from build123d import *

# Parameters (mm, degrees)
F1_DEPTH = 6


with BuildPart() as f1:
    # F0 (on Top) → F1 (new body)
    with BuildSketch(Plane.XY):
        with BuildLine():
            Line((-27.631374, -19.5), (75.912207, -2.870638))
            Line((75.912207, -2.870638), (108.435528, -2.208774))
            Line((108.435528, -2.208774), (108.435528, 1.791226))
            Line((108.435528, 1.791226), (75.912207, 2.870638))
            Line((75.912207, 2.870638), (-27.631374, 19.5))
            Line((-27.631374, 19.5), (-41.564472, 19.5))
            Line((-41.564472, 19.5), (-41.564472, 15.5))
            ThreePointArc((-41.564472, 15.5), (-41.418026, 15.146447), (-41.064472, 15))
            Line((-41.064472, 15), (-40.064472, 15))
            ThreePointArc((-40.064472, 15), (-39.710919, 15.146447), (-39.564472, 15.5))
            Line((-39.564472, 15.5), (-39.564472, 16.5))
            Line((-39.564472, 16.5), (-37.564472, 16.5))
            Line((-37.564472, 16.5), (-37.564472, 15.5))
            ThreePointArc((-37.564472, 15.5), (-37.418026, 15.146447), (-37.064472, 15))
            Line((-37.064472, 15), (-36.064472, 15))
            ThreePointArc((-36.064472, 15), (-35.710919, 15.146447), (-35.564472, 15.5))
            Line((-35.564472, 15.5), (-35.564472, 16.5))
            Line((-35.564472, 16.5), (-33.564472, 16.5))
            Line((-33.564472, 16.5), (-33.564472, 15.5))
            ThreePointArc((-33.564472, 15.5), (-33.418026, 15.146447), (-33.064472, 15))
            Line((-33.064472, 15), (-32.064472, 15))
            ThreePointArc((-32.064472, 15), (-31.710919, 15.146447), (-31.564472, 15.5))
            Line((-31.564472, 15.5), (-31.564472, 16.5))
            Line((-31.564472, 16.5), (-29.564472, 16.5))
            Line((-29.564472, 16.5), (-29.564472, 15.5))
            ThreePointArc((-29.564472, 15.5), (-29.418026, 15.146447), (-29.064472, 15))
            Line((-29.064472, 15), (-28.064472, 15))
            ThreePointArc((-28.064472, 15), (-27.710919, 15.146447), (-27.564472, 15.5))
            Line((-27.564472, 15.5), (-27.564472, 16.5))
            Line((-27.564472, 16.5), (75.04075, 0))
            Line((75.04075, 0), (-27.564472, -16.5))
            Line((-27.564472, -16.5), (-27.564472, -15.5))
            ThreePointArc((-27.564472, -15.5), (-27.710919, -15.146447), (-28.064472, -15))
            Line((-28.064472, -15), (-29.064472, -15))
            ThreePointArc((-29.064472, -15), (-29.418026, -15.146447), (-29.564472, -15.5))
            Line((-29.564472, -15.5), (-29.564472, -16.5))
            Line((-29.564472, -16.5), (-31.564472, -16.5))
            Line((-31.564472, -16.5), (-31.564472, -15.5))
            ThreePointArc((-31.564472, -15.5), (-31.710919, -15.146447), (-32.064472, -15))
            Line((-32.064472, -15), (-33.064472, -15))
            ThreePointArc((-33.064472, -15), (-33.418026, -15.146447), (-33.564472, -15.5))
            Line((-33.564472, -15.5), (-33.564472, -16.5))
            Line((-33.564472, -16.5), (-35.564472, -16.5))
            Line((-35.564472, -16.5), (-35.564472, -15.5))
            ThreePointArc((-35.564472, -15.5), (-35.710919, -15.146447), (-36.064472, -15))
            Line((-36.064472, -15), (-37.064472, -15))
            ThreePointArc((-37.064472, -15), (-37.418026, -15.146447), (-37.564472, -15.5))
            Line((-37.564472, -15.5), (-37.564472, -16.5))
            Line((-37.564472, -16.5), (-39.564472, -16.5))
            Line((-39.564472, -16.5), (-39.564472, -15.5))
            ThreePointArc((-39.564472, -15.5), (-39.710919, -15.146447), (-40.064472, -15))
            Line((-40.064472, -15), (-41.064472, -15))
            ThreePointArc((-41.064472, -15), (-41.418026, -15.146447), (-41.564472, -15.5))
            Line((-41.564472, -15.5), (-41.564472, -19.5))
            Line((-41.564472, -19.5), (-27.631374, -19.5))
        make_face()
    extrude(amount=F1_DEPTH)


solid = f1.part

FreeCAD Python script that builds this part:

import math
import FreeCAD as App
import Part
import Sketcher

V = App.Vector
Q = App.Units.Quantity

doc = App.newDocument("Part")
body = doc.addObject("PartDesign::Body", "Body")

# Sketch on XY plane
sketch1 = body.newObject("Sketcher::SketchObject", "Sketch")
sketch1.AttachmentSupport = (doc.getObject("XY_Plane"), [""])
sketch1.MapMode = "FlatFace"
sketch1.addGeometry([
    Part.LineSegment(V(-27.631374, -19.5, 0), V(75.912207, -2.870638, 0)),  # 0
    Part.LineSegment(V(75.912207, -2.870638, 0), V(108.435528, -2.208774, 0)),  # 1
    Part.LineSegment(V(108.435528, -2.208774, 0), V(108.435528, 1.791226, 0)),  # 2
    Part.LineSegment(V(108.435528, 1.791226, 0), V(75.912207, 2.870638, 0)),  # 3
    Part.LineSegment(V(75.912207, 2.870638, 0), V(-27.631374, 19.5, 0)),  # 4
    Part.LineSegment(V(-27.631374, 19.5, 0), V(-41.564472, 19.5, 0)),  # 5
    Part.LineSegment(V(-41.564472, 19.5, 0), V(-41.564472, 15.5, 0)),  # 6
    Part.ArcOfCircle(Part.Circle(V(-41.064472, 15.5, 0), V(0, 0, 1), 0.5), math.radians(179.999957), math.radians(270.000043)),  # 7
    Part.LineSegment(V(-41.064472, 15, 0), V(-40.064472, 15, 0)),  # 8
    Part.ArcOfCircle(Part.Circle(V(-40.064473, 15.500001, 0), V(0, 0, 1), 0.500001), math.radians(-89.999847), math.radians(-0.000153)),  # 9
    Part.LineSegment(V(-39.564472, 15.5, 0), V(-39.564472, 16.5, 0)),  # 10
    Part.LineSegment(V(-39.564472, 16.5, 0), V(-37.564472, 16.5, 0)),  # 11
    Part.LineSegment(V(-37.564472, 16.5, 0), V(-37.564472, 15.5, 0)),  # 12
    Part.ArcOfCircle(Part.Circle(V(-37.064472, 15.5, 0), V(0, 0, 1), 0.5), math.radians(179.999957), math.radians(270.000043)),  # 13
    Part.LineSegment(V(-37.064472, 15, 0), V(-36.064472, 15, 0)),  # 14
    Part.ArcOfCircle(Part.Circle(V(-36.064473, 15.500001, 0), V(0, 0, 1), 0.500001), math.radians(-89.999847), math.radians(-0.000153)),  # 15
    Part.LineSegment(V(-35.564472, 15.5, 0), V(-35.564472, 16.5, 0)),  # 16
    Part.LineSegment(V(-35.564472, 16.5, 0), V(-33.564472, 16.5, 0)),  # 17
    Part.LineSegment(V(-33.564472, 16.5, 0), V(-33.564472, 15.5, 0)),  # 18
    Part.ArcOfCircle(Part.Circle(V(-33.064472, 15.5, 0), V(0, 0, 1), 0.5), math.radians(179.999957), math.radians(270.000043)),  # 19
    Part.LineSegment(V(-33.064472, 15, 0), V(-32.064472, 15, 0)),  # 20
    Part.ArcOfCircle(Part.Circle(V(-32.064473, 15.500001, 0), V(0, 0, 1), 0.500001), math.radians(-89.999847), math.radians(-0.000153)),  # 21
    Part.LineSegment(V(-31.564472, 15.5, 0), V(-31.564472, 16.5, 0)),  # 22
    Part.LineSegment(V(-31.564472, 16.5, 0), V(-29.564472, 16.5, 0)),  # 23
    Part.LineSegment(V(-29.564472, 16.5, 0), V(-29.564472, 15.5, 0)),  # 24
    Part.ArcOfCircle(Part.Circle(V(-29.064472, 15.5, 0), V(0, 0, 1), 0.5), math.radians(179.999957), math.radians(270.000043)),  # 25
    Part.LineSegment(V(-29.064472, 15, 0), V(-28.064472, 15, 0)),  # 26
    Part.ArcOfCircle(Part.Circle(V(-28.064473, 15.500001, 0), V(0, 0, 1), 0.500001), math.radians(-89.999847), math.radians(-0.000153)),  # 27
    Part.LineSegment(V(-27.564472, 15.5, 0), V(-27.564472, 16.5, 0)),  # 28
    Part.LineSegment(V(-27.564472, 16.5, 0), V(75.04075, 0, 0)),  # 29
    Part.LineSegment(V(75.04075, 0, 0), V(-27.564472, -16.5, 0)),  # 30
    Part.LineSegment(V(-27.564472, -16.5, 0), V(-27.564472, -15.5, 0)),  # 31
    Part.ArcOfCircle(Part.Circle(V(-28.064473, -15.500001, 0), V(0, 0, 1), 0.500001), math.radians(0.000153), math.radians(89.999847)),  # 32
    Part.LineSegment(V(-28.064472, -15, 0), V(-29.064472, -15, 0)),  # 33
    Part.ArcOfCircle(Part.Circle(V(-29.064472, -15.5, 0), V(0, 0, 1), 0.5), math.radians(89.999957), math.radians(180.000043)),  # 34
    Part.LineSegment(V(-29.564472, -15.5, 0), V(-29.564472, -16.5, 0)),  # 35
    Part.LineSegment(V(-29.564472, -16.5, 0), V(-31.564472, -16.5, 0)),  # 36
    Part.LineSegment(V(-31.564472, -16.5, 0), V(-31.564472, -15.5, 0)),  # 37
    Part.ArcOfCircle(Part.Circle(V(-32.064473, -15.500001, 0), V(0, 0, 1), 0.500001), math.radians(0.000153), math.radians(89.999847)),  # 38
    Part.LineSegment(V(-32.064472, -15, 0), V(-33.064472, -15, 0)),  # 39
    Part.ArcOfCircle(Part.Circle(V(-33.064472, -15.5, 0), V(0, 0, 1), 0.5), math.radians(89.999957), math.radians(180.000043)),  # 40
    Part.LineSegment(V(-33.564472, -15.5, 0), V(-33.564472, -16.5, 0)),  # 41
    Part.LineSegment(V(-33.564472, -16.5, 0), V(-35.564472, -16.5, 0)),  # 42
    Part.LineSegment(V(-35.564472, -16.5, 0), V(-35.564472, -15.5, 0)),  # 43
    Part.ArcOfCircle(Part.Circle(V(-36.064473, -15.500001, 0), V(0, 0, 1), 0.500001), math.radians(0.000153), math.radians(89.999847)),  # 44
    Part.LineSegment(V(-36.064472, -15, 0), V(-37.064472, -15, 0)),  # 45
    Part.ArcOfCircle(Part.Circle(V(-37.064472, -15.5, 0), V(0, 0, 1), 0.5), math.radians(89.999957), math.radians(180.000043)),  # 46
    Part.LineSegment(V(-37.564472, -15.5, 0), V(-37.564472, -16.5, 0)),  # 47
    Part.LineSegment(V(-37.564472, -16.5, 0), V(-39.564472, -16.5, 0)),  # 48
    Part.LineSegment(V(-39.564472, -16.5, 0), V(-39.564472, -15.5, 0)),  # 49
    Part.ArcOfCircle(Part.Circle(V(-40.064473, -15.500001, 0), V(0, 0, 1), 0.500001), math.radians(0.000153), math.radians(89.999847)),  # 50
    Part.LineSegment(V(-40.064472, -15, 0), V(-41.064472, -15, 0)),  # 51
    Part.ArcOfCircle(Part.Circle(V(-41.064472, -15.5, 0), V(0, 0, 1), 0.5), math.radians(89.999957), math.radians(180.000043)),  # 52
    Part.LineSegment(V(-41.564472, -15.5, 0), V(-41.564472, -19.5, 0)),  # 53
    Part.LineSegment(V(-41.564472, -19.5, 0), V(-27.631374, -19.5, 0)),  # 54
], False)
sketch1.addConstraint([
    Sketcher.Constraint("Coincident", 0, 2, 1, 1),
    Sketcher.Constraint("Coincident", 1, 2, 2, 1),
    Sketcher.Constraint("Coincident", 2, 2, 3, 1),
    Sketcher.Constraint("Coincident", 3, 2, 4, 1),
    Sketcher.Constraint("Coincident", 4, 2, 5, 1),
    Sketcher.Constraint("Coincident", 5, 2, 6, 1),
    Sketcher.Constraint("Coincident", 6, 2, 7, 1),
    Sketcher.Constraint("Coincident", 7, 2, 8, 1),
    Sketcher.Constraint("Coincident", 8, 2, 9, 1),
    Sketcher.Constraint("Coincident", 9, 2, 10, 1),
    Sketcher.Constraint("Coincident", 10, 2, 11, 1),
    Sketcher.Constraint("Coincident", 11, 2, 12, 1),
    Sketcher.Constraint("Coincident", 12, 2, 13, 1),
    Sketcher.Constraint("Coincident", 13, 2, 14, 1),
    Sketcher.Constraint("Coincident", 14, 2, 15, 1),
    Sketcher.Constraint("Coincident", 15, 2, 16, 1),
    Sketcher.Constraint("Coincident", 16, 2, 17, 1),
    Sketcher.Constraint("Coincident", 17, 2, 18, 1),
    Sketcher.Constraint("Coincident", 18, 2, 19, 1),
    Sketcher.Constraint("Coincident", 19, 2, 20, 1),
    Sketcher.Constraint("Coincident", 20, 2, 21, 1),
    Sketcher.Constraint("Coincident", 21, 2, 22, 1),
    Sketcher.Constraint("Coincident", 22, 2, 23, 1),
    Sketcher.Constraint("Coincident", 23, 2, 24, 1),
    Sketcher.Constraint("Coincident", 24, 2, 25, 1),
    Sketcher.Constraint("Coincident", 25, 2, 26, 1),
    Sketcher.Constraint("Coincident", 26, 2, 27, 1),
    Sketcher.Constraint("Coincident", 27, 2, 28, 1),
    Sketcher.Constraint("Coincident", 28, 2, 29, 1),
    Sketcher.Constraint("Coincident", 29, 2, 30, 1),
    Sketcher.Constraint("Coincident", 30, 2, 31, 1),
    Sketcher.Constraint("Coincident", 31, 2, 32, 1),
    Sketcher.Constraint("Coincident", 32, 2, 33, 1),
    Sketcher.Constraint("Coincident", 33, 2, 34, 1),
    Sketcher.Constraint("Coincident", 34, 2, 35, 1),
    Sketcher.Constraint("Coincident", 35, 2, 36, 1),
    Sketcher.Constraint("Coincident", 36, 2, 37, 1),
    Sketcher.Constraint("Coincident", 37, 2, 38, 1),
    Sketcher.Constraint("Coincident", 38, 2, 39, 1),
    Sketcher.Constraint("Coincident", 39, 2, 40, 1),
    Sketcher.Constraint("Coincident", 40, 2, 41, 1),
    Sketcher.Constraint("Coincident", 41, 2, 42, 1),
    Sketcher.Constraint("Coincident", 42, 2, 43, 1),
    Sketcher.Constraint("Coincident", 43, 2, 44, 1),
    Sketcher.Constraint("Coincident", 44, 2, 45, 1),
    Sketcher.Constraint("Coincident", 45, 2, 46, 1),
    Sketcher.Constraint("Coincident", 46, 2, 47, 1),
    Sketcher.Constraint("Coincident", 47, 2, 48, 1),
    Sketcher.Constraint("Coincident", 48, 2, 49, 1),
    Sketcher.Constraint("Coincident", 49, 2, 50, 1),
    Sketcher.Constraint("Coincident", 50, 2, 51, 1),
    Sketcher.Constraint("Coincident", 51, 2, 52, 1),
    Sketcher.Constraint("Coincident", 52, 2, 53, 1),
    Sketcher.Constraint("Coincident", 53, 2, 54, 1),
    Sketcher.Constraint("Coincident", 54, 2, 0, 1),
    Sketcher.Constraint("Vertical", 2),
    Sketcher.Constraint("Horizontal", 5),
    Sketcher.Constraint("Vertical", 6),
    Sketcher.Constraint("Horizontal", 8),
    Sketcher.Constraint("Vertical", 10),
    Sketcher.Constraint("Horizontal", 11),
    Sketcher.Constraint("Vertical", 12),
    Sketcher.Constraint("Horizontal", 14),
    Sketcher.Constraint("Vertical", 16),
    Sketcher.Constraint("Horizontal", 17),
    Sketcher.Constraint("Vertical", 18),
    Sketcher.Constraint("Horizontal", 20),
    Sketcher.Constraint("Vertical", 22),
    Sketcher.Constraint("Horizontal", 23),
    Sketcher.Constraint("Vertical", 24),
    Sketcher.Constraint("Horizontal", 26),
    Sketcher.Constraint("Vertical", 28),
    Sketcher.Constraint("Vertical", 31),
    Sketcher.Constraint("Horizontal", 33),
    Sketcher.Constraint("Vertical", 35),
    Sketcher.Constraint("Horizontal", 36),
    Sketcher.Constraint("Vertical", 37),
    Sketcher.Constraint("Horizontal", 39),
    Sketcher.Constraint("Vertical", 41),
    Sketcher.Constraint("Horizontal", 42),
    Sketcher.Constraint("Vertical", 43),
    Sketcher.Constraint("Horizontal", 45),
    Sketcher.Constraint("Vertical", 47),
    Sketcher.Constraint("Horizontal", 48),
    Sketcher.Constraint("Vertical", 49),
    Sketcher.Constraint("Horizontal", 51),
    Sketcher.Constraint("Vertical", 53),
    Sketcher.Constraint("Horizontal", 54),
    Sketcher.Constraint("PointOnObject", 29, 2, -1),
    Sketcher.Constraint("Radius", 7, Q("0.5 mm")),
    Sketcher.Constraint("Radius", 9, Q("0.500001 mm")),
    Sketcher.Constraint("Radius", 13, Q("0.5 mm")),
    Sketcher.Constraint("Radius", 15, Q("0.500001 mm")),
    Sketcher.Constraint("Radius", 19, Q("0.5 mm")),
    Sketcher.Constraint("Radius", 21, Q("0.500001 mm")),
    Sketcher.Constraint("Radius", 25, Q("0.5 mm")),
    Sketcher.Constraint("Radius", 27, Q("0.500001 mm")),
    Sketcher.Constraint("Radius", 32, Q("0.500001 mm")),
    Sketcher.Constraint("Radius", 34, Q("0.5 mm")),
    Sketcher.Constraint("Radius", 38, Q("0.500001 mm")),
    Sketcher.Constraint("Radius", 40, Q("0.5 mm")),
    Sketcher.Constraint("Radius", 44, Q("0.500001 mm")),
    Sketcher.Constraint("Radius", 46, Q("0.5 mm")),
    Sketcher.Constraint("Radius", 50, Q("0.500001 mm")),
    Sketcher.Constraint("Radius", 52, Q("0.5 mm")),
    Sketcher.Constraint("DistanceX", 8, 1, 8, 2, Q("1 mm")),
    Sketcher.Constraint("DistanceX", 11, 1, 11, 2, Q("2 mm")),
    Sketcher.Constraint("DistanceX", 14, 1, 14, 2, Q("1 mm")),
    Sketcher.Constraint("DistanceX", 17, 1, 17, 2, Q("2 mm")),
    Sketcher.Constraint("DistanceX", 20, 1, 20, 2, Q("1 mm")),
    Sketcher.Constraint("DistanceX", 23, 1, 23, 2, Q("2 mm")),
    Sketcher.Constraint("DistanceX", 26, 1, 26, 2, Q("1 mm")),
    Sketcher.Constraint("DistanceX", 33, 2, 33, 1, Q("1 mm")),
    Sketcher.Constraint("DistanceX", 36, 2, 36, 1, Q("2 mm")),
    Sketcher.Constraint("DistanceX", 39, 2, 39, 1, Q("1 mm")),
    Sketcher.Constraint("DistanceX", 42, 2, 42, 1, Q("2 mm")),
    Sketcher.Constraint("DistanceX", 45, 2, 45, 1, Q("1 mm")),
    Sketcher.Constraint("DistanceX", 48, 2, 48, 1, Q("2 mm")),
    Sketcher.Constraint("DistanceX", 51, 2, 51, 1, Q("1 mm")),
    Sketcher.Constraint("DistanceY", 2, 1, 2, 2, Q("4 mm")),
    Sketcher.Constraint("DistanceY", 6, 2, 6, 1, Q("4 mm")),
    Sketcher.Constraint("DistanceY", 10, 1, 10, 2, Q("1 mm")),
    Sketcher.Constraint("DistanceY", 12, 2, 12, 1, Q("1 mm")),
    Sketcher.Constraint("DistanceY", 16, 1, 16, 2, Q("1 mm")),
    Sketcher.Constraint("DistanceY", 18, 2, 18, 1, Q("1 mm")),
    Sketcher.Constraint("DistanceY", 22, 1, 22, 2, Q("1 mm")),
    Sketcher.Constraint("DistanceY", 24, 2, 24, 1, Q("1 mm")),
    Sketcher.Constraint("DistanceY", 28, 1, 28, 2, Q("1 mm")),
    Sketcher.Constraint("DistanceY", 31, 1, 31, 2, Q("1 mm")),
    Sketcher.Constraint("DistanceY", 35, 2, 35, 1, Q("1 mm")),
    Sketcher.Constraint("DistanceY", 37, 1, 37, 2, Q("1 mm")),
    Sketcher.Constraint("DistanceY", 41, 2, 41, 1, Q("1 mm")),
    Sketcher.Constraint("DistanceY", 43, 1, 43, 2, Q("1 mm")),
    Sketcher.Constraint("DistanceY", 47, 2, 47, 1, Q("1 mm")),
    Sketcher.Constraint("DistanceY", 49, 1, 49, 2, Q("1 mm")),
    Sketcher.Constraint("DistanceY", 53, 2, 53, 1, Q("4 mm")),
    Sketcher.Constraint("DistanceY", -1, 1, 7, 2, Q("15 mm")),
    Sketcher.Constraint("DistanceY", -1, 1, 13, 2, Q("15 mm")),
    Sketcher.Constraint("DistanceY", -1, 1, 19, 2, Q("15 mm")),
    Sketcher.Constraint("DistanceY", -1, 1, 25, 2, Q("15 mm")),
    Sketcher.Constraint("DistanceY", 32, 2, -1, 1, Q("15 mm")),
    Sketcher.Constraint("DistanceY", 38, 2, -1, 1, Q("15 mm")),
    Sketcher.Constraint("DistanceY", 44, 2, -1, 1, Q("15 mm")),
    Sketcher.Constraint("DistanceY", 50, 2, -1, 1, Q("15 mm")),
    Sketcher.Constraint("DistanceY", -1, 1, 4, 2, Q("19.5 mm")),
    Sketcher.Constraint("DistanceY", -1, 1, 9, 2, Q("15.5 mm")),
    Sketcher.Constraint("DistanceY", -1, 1, 15, 2, Q("15.5 mm")),
    Sketcher.Constraint("DistanceY", -1, 1, 21, 2, Q("15.5 mm")),
    Sketcher.Constraint("DistanceY", -1, 1, 27, 2, Q("15.5 mm")),
    Sketcher.Constraint("DistanceY", 30, 2, -1, 1, Q("16.5 mm")),
    Sketcher.Constraint("DistanceY", 34, 2, -1, 1, Q("15.5 mm")),
    Sketcher.Constraint("DistanceY", 40, 2, -1, 1, Q("15.5 mm")),
    Sketcher.Constraint("DistanceY", 46, 2, -1, 1, Q("15.5 mm")),
    Sketcher.Constraint("DistanceY", 52, 2, -1, 1, Q("15.5 mm")),
    Sketcher.Constraint("DistanceX", 5, 2, 5, 1, Q("13.933098 mm")),
    Sketcher.Constraint("DistanceX", 54, 1, 54, 2, Q("13.933098 mm")),
    Sketcher.Constraint("Distance", 0, Q("104.870438 mm")),
    Sketcher.Constraint("Distance", 3, Q("32.541228 mm")),
    Sketcher.Constraint("Distance", 4, Q("104.870438 mm")),
    Sketcher.Constraint("Distance", 29, Q("103.923441 mm")),
    Sketcher.Constraint("Distance", 30, Q("103.923441 mm")),
    Sketcher.Constraint("DistanceY", 0, 2, -1, 1, Q("2.870638 mm")),
    Sketcher.Constraint("DistanceX", -1, 1, 1, 2, Q("108.435528 mm")),
    Sketcher.Constraint("DistanceY", -1, 1, 3, 2, Q("2.870638 mm")),
    Sketcher.Constraint("DistanceX", 22, 2, -1, 1, Q("31.564472 mm")),
    Sketcher.Constraint("DistanceX", 25, 2, -1, 1, Q("29.064472 mm")),
    Sketcher.Constraint("DistanceX", 28, 2, -1, 1, Q("27.564472 mm")),
    Sketcher.Constraint("DistanceX", 32, 2, -1, 1, Q("28.064472 mm")),
    Sketcher.Constraint("DistanceX", 34, 2, -1, 1, Q("29.564472 mm")),
    Sketcher.Constraint("DistanceX", 40, 2, -1, 1, Q("33.564472 mm")),
    Sketcher.Constraint("DistanceX", 46, 2, -1, 1, Q("37.564472 mm")),
    Sketcher.Constraint("DistanceX", 52, 2, -1, 1, Q("41.564472 mm")),
    Sketcher.Constraint("Distance", 1, Q("32.530055 mm")),
    Sketcher.Constraint("DistanceX", 9, 3, -1, 1, Q("40.064473 mm")),
    Sketcher.Constraint("DistanceX", 15, 3, -1, 1, Q("36.064473 mm")),
    Sketcher.Constraint("DistanceX", 7, 2, -1, 1, Q("41.064472 mm")),
    Sketcher.Constraint("DistanceX", 13, 2, -1, 1, Q("37.064472 mm")),
    Sketcher.Constraint("DistanceX", 19, 2, -1, 1, Q("33.064472 mm")),
    Sketcher.Constraint("DistanceX", 38, 2, -1, 1, Q("32.064472 mm")),
    Sketcher.Constraint("DistanceX", 44, 2, -1, 1, Q("36.064472 mm")),
    Sketcher.Constraint("DistanceX", 50, 2, -1, 1, Q("40.064472 mm")),
])
pad1 = body.newObject("PartDesign::Pad", "Pad")
pad1.Profile = sketch1
pad1.Length = 6

doc.recompute()
